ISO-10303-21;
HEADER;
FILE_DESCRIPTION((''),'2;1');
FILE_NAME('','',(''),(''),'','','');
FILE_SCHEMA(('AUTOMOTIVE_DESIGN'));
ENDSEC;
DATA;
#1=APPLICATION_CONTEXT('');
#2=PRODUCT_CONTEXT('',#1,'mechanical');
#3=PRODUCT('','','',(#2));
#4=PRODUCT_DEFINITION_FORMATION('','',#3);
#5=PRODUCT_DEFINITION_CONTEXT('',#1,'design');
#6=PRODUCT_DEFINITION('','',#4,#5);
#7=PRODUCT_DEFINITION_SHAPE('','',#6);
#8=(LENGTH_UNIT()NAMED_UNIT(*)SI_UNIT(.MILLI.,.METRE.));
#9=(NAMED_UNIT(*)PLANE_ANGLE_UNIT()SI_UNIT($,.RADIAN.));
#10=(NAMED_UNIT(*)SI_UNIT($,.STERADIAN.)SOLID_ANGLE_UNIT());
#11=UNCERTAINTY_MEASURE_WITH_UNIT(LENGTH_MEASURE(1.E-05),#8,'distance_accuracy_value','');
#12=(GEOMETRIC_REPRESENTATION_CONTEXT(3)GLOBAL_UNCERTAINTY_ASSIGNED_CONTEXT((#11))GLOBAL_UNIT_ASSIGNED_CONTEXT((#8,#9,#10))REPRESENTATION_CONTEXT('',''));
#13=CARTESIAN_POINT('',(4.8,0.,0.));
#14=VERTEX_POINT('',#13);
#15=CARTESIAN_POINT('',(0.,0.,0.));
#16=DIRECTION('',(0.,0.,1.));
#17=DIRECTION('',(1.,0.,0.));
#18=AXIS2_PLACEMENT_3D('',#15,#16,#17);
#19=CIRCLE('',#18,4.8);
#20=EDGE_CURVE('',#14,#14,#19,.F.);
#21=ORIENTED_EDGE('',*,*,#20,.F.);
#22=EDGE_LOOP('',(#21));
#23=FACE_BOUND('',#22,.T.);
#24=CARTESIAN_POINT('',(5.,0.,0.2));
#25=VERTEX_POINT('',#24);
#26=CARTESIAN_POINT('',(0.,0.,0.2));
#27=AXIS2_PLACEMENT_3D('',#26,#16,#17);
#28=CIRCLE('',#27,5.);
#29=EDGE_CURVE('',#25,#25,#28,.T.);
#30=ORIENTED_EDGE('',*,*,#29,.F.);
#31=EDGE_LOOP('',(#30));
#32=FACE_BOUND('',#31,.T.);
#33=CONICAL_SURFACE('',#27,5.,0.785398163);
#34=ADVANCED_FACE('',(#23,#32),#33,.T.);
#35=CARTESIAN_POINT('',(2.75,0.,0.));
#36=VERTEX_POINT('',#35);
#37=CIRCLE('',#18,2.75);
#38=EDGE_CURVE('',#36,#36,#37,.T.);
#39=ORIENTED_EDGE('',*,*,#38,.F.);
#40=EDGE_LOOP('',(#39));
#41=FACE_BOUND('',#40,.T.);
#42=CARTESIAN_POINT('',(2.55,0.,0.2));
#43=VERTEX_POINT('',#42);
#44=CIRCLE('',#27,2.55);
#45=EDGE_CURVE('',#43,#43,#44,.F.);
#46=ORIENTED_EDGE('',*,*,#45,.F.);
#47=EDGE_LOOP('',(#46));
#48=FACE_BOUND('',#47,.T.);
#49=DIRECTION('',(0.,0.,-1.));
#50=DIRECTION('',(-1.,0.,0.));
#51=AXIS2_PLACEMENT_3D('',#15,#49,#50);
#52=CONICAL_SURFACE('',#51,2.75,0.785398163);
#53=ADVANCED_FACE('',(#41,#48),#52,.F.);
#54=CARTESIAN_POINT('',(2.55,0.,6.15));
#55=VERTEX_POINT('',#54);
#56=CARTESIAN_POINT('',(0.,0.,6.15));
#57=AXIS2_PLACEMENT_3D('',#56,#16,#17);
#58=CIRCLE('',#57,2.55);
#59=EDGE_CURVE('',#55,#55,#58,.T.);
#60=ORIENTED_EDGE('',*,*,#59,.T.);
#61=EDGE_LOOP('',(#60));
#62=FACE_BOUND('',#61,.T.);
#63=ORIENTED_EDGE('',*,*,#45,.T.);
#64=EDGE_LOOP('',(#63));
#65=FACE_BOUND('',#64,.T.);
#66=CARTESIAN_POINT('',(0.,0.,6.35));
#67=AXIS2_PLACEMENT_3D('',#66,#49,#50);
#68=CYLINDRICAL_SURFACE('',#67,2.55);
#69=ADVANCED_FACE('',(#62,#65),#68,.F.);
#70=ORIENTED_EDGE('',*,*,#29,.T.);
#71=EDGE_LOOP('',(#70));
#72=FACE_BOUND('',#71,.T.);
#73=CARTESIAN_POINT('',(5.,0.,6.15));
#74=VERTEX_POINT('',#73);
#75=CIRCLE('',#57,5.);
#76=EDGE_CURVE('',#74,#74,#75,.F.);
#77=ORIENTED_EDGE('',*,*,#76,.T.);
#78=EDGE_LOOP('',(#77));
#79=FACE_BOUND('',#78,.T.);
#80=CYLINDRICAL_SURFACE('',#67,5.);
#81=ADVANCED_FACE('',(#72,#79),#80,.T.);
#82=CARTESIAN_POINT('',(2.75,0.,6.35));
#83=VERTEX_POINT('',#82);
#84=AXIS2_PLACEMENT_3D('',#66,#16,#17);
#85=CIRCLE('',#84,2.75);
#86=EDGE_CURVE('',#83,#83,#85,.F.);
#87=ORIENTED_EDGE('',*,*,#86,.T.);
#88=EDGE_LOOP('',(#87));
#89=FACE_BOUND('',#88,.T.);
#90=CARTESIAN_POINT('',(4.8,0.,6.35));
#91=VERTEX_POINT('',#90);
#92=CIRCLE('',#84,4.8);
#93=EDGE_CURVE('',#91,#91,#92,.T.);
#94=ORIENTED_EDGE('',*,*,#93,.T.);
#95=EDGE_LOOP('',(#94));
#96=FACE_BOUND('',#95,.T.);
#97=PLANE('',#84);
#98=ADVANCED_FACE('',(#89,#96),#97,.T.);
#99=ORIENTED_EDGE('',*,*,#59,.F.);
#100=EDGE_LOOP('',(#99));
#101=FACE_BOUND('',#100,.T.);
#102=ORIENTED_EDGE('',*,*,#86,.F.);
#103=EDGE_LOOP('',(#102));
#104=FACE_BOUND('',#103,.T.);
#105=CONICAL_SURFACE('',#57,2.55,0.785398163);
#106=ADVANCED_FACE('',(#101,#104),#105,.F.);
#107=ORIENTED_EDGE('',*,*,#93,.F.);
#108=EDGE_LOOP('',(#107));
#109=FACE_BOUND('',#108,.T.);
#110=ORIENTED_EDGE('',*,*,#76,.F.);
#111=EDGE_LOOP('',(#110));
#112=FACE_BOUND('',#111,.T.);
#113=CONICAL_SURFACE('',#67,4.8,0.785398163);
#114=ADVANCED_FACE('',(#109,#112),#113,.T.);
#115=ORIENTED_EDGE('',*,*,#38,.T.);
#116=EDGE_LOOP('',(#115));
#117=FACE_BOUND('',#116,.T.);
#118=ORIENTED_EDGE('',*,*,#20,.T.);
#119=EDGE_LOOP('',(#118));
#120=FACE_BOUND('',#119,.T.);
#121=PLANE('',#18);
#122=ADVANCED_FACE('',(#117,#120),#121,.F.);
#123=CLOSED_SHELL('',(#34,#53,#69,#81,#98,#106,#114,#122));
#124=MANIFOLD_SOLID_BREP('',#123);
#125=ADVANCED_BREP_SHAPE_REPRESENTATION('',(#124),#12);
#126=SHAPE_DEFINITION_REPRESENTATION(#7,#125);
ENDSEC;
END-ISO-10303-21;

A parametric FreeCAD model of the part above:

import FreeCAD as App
import Part
import Sketcher
from FreeCAD import Vector
Q = App.Units.Quantity


def edges_at(feature, points):
    """Names of the edges that pass closest to the given points."""
    edges = feature.Shape.Edges
    near = lambda p: min(range(len(edges)), key=lambda i: edges[i].distToShape(Part.Vertex(*p))[0])
    return sorted({f"Edge{near(p) + 1}" for p in points})

doc = App.newDocument("Part")
body = doc.addObject("PartDesign::Body", "Body")

sketch1 = doc.addObject("Sketcher::SketchObject", "Sketch")
body.addObject(sketch1)
sketch1.AttachmentSupport = (doc.XY_Plane, [""])
sketch1.MapMode = "FlatFace"
sketch1.addGeometry([
    Part.Circle(Vector(0, 0, 0), Vector(0, 0, 1), 5),
    Part.Circle(Vector(0, 0, 0), Vector(0, 0, 1), 2.55),
], False)
sketch1.addConstraint([
    Sketcher.Constraint("Coincident", 0, 3, -1, 1),
    Sketcher.Constraint("Coincident", 1, 3, -1, 1),
    Sketcher.Constraint("Diameter", 0, Q("10 mm")),
    Sketcher.Constraint("Diameter", 1, Q("5.1 mm")),
])
pad1 = doc.addObject("PartDesign::Pad", "Pad")
body.addObject(pad1)
pad1.Profile = sketch1
pad1.Length = 6.35
doc.recompute()

chamfer = doc.addObject("PartDesign::Chamfer", "Chamfer")
body.addObject(chamfer)
chamfer.Base = (pad1, edges_at(pad1, [
    (-5, 0, 0),
    (-5, 0, 6.35),
    (-2.55, 0, 0),
    (-2.55, 0, 6.35),
]))
chamfer.Size = 0.2

doc.recompute()
